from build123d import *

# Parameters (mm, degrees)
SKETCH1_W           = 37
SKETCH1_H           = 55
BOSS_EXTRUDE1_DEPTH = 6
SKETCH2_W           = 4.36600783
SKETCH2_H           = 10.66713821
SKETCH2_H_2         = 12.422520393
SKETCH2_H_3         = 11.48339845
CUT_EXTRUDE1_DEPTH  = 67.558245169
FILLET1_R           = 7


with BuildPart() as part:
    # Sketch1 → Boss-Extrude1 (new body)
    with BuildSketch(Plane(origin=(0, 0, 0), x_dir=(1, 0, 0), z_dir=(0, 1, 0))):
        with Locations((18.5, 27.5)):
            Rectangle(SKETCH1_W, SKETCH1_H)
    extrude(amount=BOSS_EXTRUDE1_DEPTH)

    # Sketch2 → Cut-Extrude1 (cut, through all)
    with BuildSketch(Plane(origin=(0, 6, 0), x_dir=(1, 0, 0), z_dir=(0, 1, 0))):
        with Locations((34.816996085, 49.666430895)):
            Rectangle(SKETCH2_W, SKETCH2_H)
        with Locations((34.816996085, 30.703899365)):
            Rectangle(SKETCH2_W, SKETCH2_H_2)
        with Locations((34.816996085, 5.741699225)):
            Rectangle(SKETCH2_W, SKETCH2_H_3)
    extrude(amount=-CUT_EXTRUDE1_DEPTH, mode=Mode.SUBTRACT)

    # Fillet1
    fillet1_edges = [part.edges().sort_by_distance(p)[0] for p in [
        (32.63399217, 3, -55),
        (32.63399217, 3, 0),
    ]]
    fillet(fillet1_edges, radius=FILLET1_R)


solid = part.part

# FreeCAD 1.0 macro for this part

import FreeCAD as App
import Part
import Sketcher


def edges_at(feature, points):
    """Names of the edges that pass closest to the given points."""
    edges = feature.Shape.Edges
    near = lambda p: min(range(len(edges)), key=lambda i: edges[i].distToShape(Part.Vertex(*p))[0])
    return sorted({f"Edge{near(p) + 1}" for p in points})


def add_polygon(sketch, points):
    """Adds a closed chain of lines whose ends are joined by coincident constraints."""
    first, n = sketch.GeometryCount, len(points)
    for a, b in zip(points, points[1:] + points[:1]):
        sketch.addGeometry(Part.LineSegment(App.Vector(*a, 0), App.Vector(*b, 0)), False)
    for i in range(n):
        sketch.addConstraint(Sketcher.Constraint("Coincident", first + i, 2, first + (i + 1) % n, 1))

doc = App.newDocument("Part")
params = doc.addObject("Spreadsheet::Sheet", "Params")
for row, (alias, value) in enumerate([
    ("sketch1_width", "37 mm"),
    ("sketch1_height", "55 mm"),
    ("pad1_length", "6 mm"),
    ("fillet_radius", "7 mm"),
], start=1):
    params.set(f"A{row}", alias)
    params.set(f"B{row}", "=" + value)
    params.setAlias(f"B{row}", alias)

body = doc.addObject("PartDesign::Body", "Body")

# Sketch on XZ plane
sketch1 = doc.addObject("Sketcher::SketchObject", "Sketch")
body.addObject(sketch1)
sketch1.AttachmentSupport = (doc.XZ_Plane, [""])
sketch1.MapMode = "FlatFace"
add_polygon(sketch1, [(0, -55), (0, 0), (37, 0), (37, -55)])  # lines 0-3
sketch1.addConstraint([
    Sketcher.Constraint("Vertical", 0),
    Sketcher.Constraint("Horizontal", 1),
    Sketcher.Constraint("Vertical", 2),
    Sketcher.Constraint("Horizontal", 3),
    Sketcher.Constraint("Coincident", 0, 2, -1, 1),
    Sketcher.Constraint("DistanceX", 1, 1, 1, 2, 37.0),
    Sketcher.Constraint("DistanceY", 0, 1, 0, 2, 55.0),
])
sketch1.setExpression("Constraints[9]", "Params.sketch1_width")
sketch1.setExpression("Constraints[10]", "Params.sketch1_height")
pad1 = doc.addObject("PartDesign::Pad", "Pad")
body.addObject(pad1)
pad1.Profile = sketch1
pad1.setExpression("Length", "Params.pad1_length")
pad1.Reversed = True

# Sketch on XZ plane
sketch2 = doc.addObject("Sketcher::SketchObject", "Sketch001")
body.addObject(sketch2)
sketch2.AttachmentSupport = (doc.XZ_Plane, [""])
sketch2.MapMode = "FlatFace"
sketch2.AttachmentOffset = App.Placement(App.Vector(0, 0, -6), App.Rotation())
add_polygon(sketch2, [(32.6, -55), (32.6, -44.3), (37, -44.3), (37, -55)])  # lines 0-3
add_polygon(sketch2, [(32.6, -36.9), (32.6, -24.5), (37, -24.5), (37, -36.9)])  # lines 4-7
add_polygon(sketch2, [(32.6, -11.5), (32.6, 0), (37, 0), (37, -11.5)])  # lines 8-11
sketch2.addConstraint([
    Sketcher.Constraint("Vertical", 0),
    Sketcher.Constraint("Horizontal", 1),
    Sketcher.Constraint("Vertical", 2),
    Sketcher.Constraint("Horizontal", 3),
    Sketcher.Constraint("Vertical", 4),
    Sketcher.Constraint("Horizontal", 5),
    Sketcher.Constraint("Vertical", 6),
    Sketcher.Constraint("Horizontal", 7),
    Sketcher.Constraint("Vertical", 8),
    Sketcher.Constraint("Horizontal", 9),
    Sketcher.Constraint("Vertical", 10),
    Sketcher.Constraint("Horizontal", 11),
    Sketcher.Constraint("PointOnObject", 8, 2, -1),
    Sketcher.Constraint("Vertical", 3, 2, 4, 2),
    Sketcher.Constraint("Vertical", 2, 2, 5, 2),
    Sketcher.Constraint("Vertical", 7, 2, 8, 2),
    Sketcher.Constraint("Vertical", 6, 2, 9, 2),
    Sketcher.Constraint("DistanceX", -1, 1, 1, 2, 37.0),
    Sketcher.Constraint("DistanceY", 2, 2, -1, 1, 55.0),
    Sketcher.Constraint("DistanceY", 8, 1, 8, 2, 11.483398),
    Sketcher.Constraint("DistanceY", 0, 1, 0, 2, 10.667138),
    Sketcher.Constraint("DistanceY", 4, 1, 4, 2, 12.42252),
    Sketcher.Constraint("DistanceX", 1, 1, 1, 2, 4.366008),
    Sketcher.Constraint("DistanceY", 4, 2, -1, 1, 24.492639),
])
pocket1 = doc.addObject("PartDesign::Pocket", "Pocket")
body.addObject(pocket1)
pocket1.Profile = sketch2
pocket1.Type = "ThroughAll"
pocket1.Reversed = True
doc.recompute()

fillet = doc.addObject("PartDesign::Fillet", "Fillet")
body.addObject(fillet)
fillet.Base = (pocket1, edges_at(pocket1, [(32.634, 3, -55), (32.634, 3, 0)]))
fillet.setExpression("Radius", "Params.fillet_radius")

doc.recompute()
